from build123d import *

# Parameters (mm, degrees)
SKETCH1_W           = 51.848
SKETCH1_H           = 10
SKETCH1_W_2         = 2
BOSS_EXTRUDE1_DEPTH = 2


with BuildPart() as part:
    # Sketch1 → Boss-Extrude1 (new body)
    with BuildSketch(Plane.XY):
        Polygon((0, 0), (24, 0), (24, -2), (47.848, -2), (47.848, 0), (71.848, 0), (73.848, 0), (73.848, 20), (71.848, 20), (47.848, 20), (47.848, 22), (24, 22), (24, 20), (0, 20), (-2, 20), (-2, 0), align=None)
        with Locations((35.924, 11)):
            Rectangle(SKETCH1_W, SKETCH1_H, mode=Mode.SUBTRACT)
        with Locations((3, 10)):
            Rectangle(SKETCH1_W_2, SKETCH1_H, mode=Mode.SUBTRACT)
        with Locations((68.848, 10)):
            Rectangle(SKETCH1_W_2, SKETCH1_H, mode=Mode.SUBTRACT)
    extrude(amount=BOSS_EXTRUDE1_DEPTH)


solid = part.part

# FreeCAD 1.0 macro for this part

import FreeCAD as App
import Part
import Sketcher


def add_polygon(sketch, points):
    """Adds a closed chain of lines whose ends are joined by coincident constraints."""
    first, n = sketch.GeometryCount, len(points)
    for a, b in zip(points, points[1:] + points[:1]):
        sketch.addGeometry(Part.LineSegment(App.Vector(*a, 0), App.Vector(*b, 0)), False)
    for i in range(n):
        sketch.addConstraint(Sketcher.Constraint("Coincident", first + i, 2, first + (i + 1) % n, 1))

doc = App.newDocument("Part")
body = doc.addObject("PartDesign::Body", "Body")

sketch1 = doc.addObject("Sketcher::SketchObject", "Sketch")
body.addObject(sketch1)
sketch1.AttachmentSupport = (doc.XY_Plane, [""])
sketch1.MapMode = "FlatFace"
add_polygon(sketch1, [(24, 0), (24, -2), (47.848, -2), (47.848, 0), (73.848, 0), (73.848, 20), (47.848, 20), (47.848, 22), (24, 22), (24, 20), (-2, 20), (-2, 0)])
add_polygon(sketch1, [(4, 5), (2, 5), (2, 15), (4, 15)])
add_polygon(sketch1, [(69.848, 5), (67.848, 5), (67.848, 15), (69.848, 15)])
add_polygon(sketch1, [(61.848, 6), (10, 6), (10, 16), (61.848, 16)])
sketch1.addConstraint([
    Sketcher.Constraint("Vertical", 0),
    Sketcher.Constraint("Horizontal", 1),
    Sketcher.Constraint("Vertical", 2),
    Sketcher.Constraint("Horizontal", 3),
    Sketcher.Constraint("Vertical", 4),
    Sketcher.Constraint("Horizontal", 5),
    Sketcher.Constraint("Vertical", 6),
    Sketcher.Constraint("Horizontal", 7),
    Sketcher.Constraint("Vertical", 8),
    Sketcher.Constraint("Horizontal", 9),
    Sketcher.Constraint("Vertical", 10),
    Sketcher.Constraint("Horizontal", 11),
    Sketcher.Constraint("Horizontal", 12),
    Sketcher.Constraint("Vertical", 13),
    Sketcher.Constraint("Horizontal", 14),
    Sketcher.Constraint("Vertical", 15),
    Sketcher.Constraint("Horizontal", 16),
    Sketcher.Constraint("Vertical", 17),
    Sketcher.Constraint("Horizontal", 18),
    Sketcher.Constraint("Vertical", 19),
    Sketcher.Constraint("Horizontal", 20),
    Sketcher.Constraint("Vertical", 21),
    Sketcher.Constraint("Horizontal", 22),
    Sketcher.Constraint("Vertical", 23),
    Sketcher.Constraint("PointOnObject", 2, 2, -1),
    Sketcher.Constraint("PointOnObject", 10, 2, -1),
    Sketcher.Constraint("Horizontal", 5, 2, 8, 2),
    Sketcher.Constraint("Horizontal", 15, 2, 16, 2),
    Sketcher.Constraint("Horizontal", 14, 2, 17, 2),
    Sketcher.Constraint("Vertical", 2, 2, 5, 2),
    Sketcher.Constraint("Vertical", 0, 2, 7, 2),
    Sketcher.Constraint("Equal", 5, 9),
    Sketcher.Constraint("Equal", 14, 16),
    Sketcher.Constraint("Equal", 18, 0),
    Sketcher.Constraint("Equal", 2, 6),
    Sketcher.Constraint("Equal", 19, 21),
    Sketcher.Constraint("DistanceX", 3, 1, 3, 2, 26.0),
    Sketcher.Constraint("DistanceX", 12, 2, 12, 1, 2.0),
    Sketcher.Constraint("DistanceY", 4, 1, 4, 2, 20.0),
    Sketcher.Constraint("DistanceY", 13, 1, 13, 2, 10.0),
    Sketcher.Constraint("DistanceX", -1, 1, 0, 2, 24.0),
    Sketcher.Constraint("DistanceX", -1, 1, 12, 2, 2.0),
    Sketcher.Constraint("DistanceY", -1, 1, 12, 2, 5.0),
    Sketcher.Constraint("DistanceX", -1, 1, 20, 2, 10.0),
    Sketcher.Constraint("DistanceY", -1, 1, 20, 2, 6.0),
    Sketcher.Constraint("DistanceX", 16, 2, 3, 2, 6.0),
    Sketcher.Constraint("DistanceX", 22, 2, 17, 2, 6.0),
    Sketcher.Constraint("DistanceX", 1, 1, 1, 2, 23.848),
])
pad1 = doc.addObject("PartDesign::Pad", "Pad")
body.addObject(pad1)
pad1.Profile = sketch1
pad1.Length = 2

doc.recompute()
